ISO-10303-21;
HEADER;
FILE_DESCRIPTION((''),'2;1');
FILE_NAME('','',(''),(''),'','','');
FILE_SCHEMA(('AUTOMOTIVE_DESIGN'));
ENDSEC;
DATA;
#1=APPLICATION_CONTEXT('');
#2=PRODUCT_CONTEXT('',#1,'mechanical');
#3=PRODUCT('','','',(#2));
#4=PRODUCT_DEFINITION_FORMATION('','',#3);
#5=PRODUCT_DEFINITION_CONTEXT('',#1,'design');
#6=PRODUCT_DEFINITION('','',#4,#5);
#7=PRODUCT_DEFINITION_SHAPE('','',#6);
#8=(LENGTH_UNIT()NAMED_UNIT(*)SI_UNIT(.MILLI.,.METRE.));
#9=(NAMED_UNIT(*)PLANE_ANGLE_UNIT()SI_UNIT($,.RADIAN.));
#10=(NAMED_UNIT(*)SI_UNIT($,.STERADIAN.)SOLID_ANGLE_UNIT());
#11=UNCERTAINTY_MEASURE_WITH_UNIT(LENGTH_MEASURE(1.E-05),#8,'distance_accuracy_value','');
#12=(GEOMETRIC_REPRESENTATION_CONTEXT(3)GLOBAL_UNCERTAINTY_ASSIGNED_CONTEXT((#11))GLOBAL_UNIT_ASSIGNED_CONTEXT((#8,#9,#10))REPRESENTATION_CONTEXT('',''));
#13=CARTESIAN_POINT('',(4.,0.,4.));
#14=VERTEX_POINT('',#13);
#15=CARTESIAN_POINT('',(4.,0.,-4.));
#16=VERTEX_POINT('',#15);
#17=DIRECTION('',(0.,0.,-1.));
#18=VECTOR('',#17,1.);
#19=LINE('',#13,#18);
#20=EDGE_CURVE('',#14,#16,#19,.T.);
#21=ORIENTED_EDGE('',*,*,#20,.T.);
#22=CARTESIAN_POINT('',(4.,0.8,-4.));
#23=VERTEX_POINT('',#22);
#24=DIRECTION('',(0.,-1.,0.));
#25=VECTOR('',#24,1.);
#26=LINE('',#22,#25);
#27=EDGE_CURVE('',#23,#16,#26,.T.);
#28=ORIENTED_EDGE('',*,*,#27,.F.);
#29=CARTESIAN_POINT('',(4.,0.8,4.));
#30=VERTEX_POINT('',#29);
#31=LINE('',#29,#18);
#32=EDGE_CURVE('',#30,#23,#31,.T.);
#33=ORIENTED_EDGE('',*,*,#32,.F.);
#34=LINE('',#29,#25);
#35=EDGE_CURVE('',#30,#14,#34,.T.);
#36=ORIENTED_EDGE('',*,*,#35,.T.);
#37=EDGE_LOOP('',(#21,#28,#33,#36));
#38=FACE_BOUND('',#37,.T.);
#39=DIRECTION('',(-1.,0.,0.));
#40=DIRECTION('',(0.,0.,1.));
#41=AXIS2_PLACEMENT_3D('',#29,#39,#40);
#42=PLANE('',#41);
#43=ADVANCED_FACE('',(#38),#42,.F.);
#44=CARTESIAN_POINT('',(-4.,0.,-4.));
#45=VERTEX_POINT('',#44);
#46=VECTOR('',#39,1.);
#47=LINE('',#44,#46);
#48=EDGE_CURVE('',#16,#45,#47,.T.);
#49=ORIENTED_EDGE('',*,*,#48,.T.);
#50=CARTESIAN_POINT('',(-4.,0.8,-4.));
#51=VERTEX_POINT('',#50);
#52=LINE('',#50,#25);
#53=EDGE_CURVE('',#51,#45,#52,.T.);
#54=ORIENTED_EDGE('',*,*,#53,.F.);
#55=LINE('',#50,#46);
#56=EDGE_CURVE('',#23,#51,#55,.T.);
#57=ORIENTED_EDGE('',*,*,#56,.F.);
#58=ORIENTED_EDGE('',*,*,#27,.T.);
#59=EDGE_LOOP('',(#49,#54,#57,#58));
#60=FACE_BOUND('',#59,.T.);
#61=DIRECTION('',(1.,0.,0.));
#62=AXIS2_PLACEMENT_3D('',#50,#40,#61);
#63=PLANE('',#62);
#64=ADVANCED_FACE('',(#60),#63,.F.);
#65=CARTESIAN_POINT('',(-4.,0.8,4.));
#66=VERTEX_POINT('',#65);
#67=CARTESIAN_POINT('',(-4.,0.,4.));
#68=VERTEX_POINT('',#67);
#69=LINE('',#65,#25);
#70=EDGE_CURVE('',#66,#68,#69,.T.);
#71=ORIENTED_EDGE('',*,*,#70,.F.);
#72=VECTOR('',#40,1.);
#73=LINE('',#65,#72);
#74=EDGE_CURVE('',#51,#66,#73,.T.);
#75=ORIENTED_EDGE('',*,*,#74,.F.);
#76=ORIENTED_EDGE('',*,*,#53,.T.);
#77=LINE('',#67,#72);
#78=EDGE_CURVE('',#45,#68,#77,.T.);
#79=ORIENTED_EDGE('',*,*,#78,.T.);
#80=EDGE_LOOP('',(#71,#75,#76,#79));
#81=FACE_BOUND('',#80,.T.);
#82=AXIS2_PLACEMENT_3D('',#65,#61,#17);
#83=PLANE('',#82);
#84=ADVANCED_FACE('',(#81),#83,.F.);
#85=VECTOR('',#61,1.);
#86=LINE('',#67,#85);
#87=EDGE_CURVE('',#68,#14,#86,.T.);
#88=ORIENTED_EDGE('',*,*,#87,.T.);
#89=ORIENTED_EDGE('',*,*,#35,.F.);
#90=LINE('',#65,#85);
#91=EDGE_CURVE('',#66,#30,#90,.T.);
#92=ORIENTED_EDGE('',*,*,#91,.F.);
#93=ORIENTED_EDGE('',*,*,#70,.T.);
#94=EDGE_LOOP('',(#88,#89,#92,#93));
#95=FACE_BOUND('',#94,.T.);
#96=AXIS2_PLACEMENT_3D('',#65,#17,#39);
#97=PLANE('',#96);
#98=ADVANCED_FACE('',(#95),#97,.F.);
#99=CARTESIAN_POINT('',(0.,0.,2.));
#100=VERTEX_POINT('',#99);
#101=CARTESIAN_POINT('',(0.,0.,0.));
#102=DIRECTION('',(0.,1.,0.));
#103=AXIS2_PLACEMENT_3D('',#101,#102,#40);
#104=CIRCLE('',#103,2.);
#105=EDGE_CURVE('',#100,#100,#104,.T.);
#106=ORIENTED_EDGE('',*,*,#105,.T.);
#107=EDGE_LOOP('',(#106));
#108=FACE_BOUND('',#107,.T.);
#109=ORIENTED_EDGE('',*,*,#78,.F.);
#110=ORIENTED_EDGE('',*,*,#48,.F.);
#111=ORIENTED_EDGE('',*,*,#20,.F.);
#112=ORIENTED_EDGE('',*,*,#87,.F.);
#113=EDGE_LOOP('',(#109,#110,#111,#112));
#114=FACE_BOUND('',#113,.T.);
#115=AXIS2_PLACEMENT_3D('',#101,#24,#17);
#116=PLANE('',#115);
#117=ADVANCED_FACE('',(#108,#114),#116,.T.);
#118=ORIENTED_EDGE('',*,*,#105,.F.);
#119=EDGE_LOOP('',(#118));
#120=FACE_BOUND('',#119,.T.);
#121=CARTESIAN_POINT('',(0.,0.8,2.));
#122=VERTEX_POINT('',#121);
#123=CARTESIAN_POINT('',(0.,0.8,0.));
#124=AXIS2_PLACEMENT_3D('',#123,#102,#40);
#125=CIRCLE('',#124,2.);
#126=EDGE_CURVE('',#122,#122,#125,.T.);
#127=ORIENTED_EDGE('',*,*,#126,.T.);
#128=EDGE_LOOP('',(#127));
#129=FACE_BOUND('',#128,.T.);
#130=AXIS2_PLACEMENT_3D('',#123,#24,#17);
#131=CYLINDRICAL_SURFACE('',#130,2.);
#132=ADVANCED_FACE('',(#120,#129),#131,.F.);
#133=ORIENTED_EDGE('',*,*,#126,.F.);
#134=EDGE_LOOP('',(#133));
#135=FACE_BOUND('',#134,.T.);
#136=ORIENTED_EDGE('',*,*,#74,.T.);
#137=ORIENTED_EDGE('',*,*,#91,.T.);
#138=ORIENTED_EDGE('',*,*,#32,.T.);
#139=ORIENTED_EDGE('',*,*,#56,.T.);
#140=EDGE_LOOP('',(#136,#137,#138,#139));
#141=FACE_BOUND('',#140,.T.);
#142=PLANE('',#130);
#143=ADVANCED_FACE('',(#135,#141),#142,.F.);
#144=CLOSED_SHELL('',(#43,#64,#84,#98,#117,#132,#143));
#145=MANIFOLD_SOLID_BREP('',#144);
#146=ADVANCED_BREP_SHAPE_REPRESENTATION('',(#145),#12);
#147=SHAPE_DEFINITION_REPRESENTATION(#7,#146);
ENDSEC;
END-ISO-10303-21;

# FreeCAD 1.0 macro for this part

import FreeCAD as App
import Part
import Sketcher
from FreeCAD import Vector


def add_polygon(sketch, points):
    """Adds a closed chain of lines whose ends are joined by coincident constraints."""
    first, n = sketch.GeometryCount, len(points)
    for a, b in zip(points, points[1:] + points[:1]):
        sketch.addGeometry(Part.LineSegment(App.Vector(*a, 0), App.Vector(*b, 0)), False)
    for i in range(n):
        sketch.addConstraint(Sketcher.Constraint("Coincident", first + i, 2, first + (i + 1) % n, 1))

doc = App.newDocument("Part")
body = doc.addObject("PartDesign::Body", "Body")

# Sketch on XZ plane
sketch1 = body.newObject("Sketcher::SketchObject", "Sketch")
sketch1.AttachmentSupport = (doc.getObject("XZ_Plane"), [""])
sketch1.MapMode = "FlatFace"
add_polygon(sketch1, [(-4, -4), (-4, 4), (4, 4), (4, -4)])  # lines 0-3
sketch1.addGeometry(Part.Circle(Vector(0, 0, 0), Vector(0, 0, 1), 2), False)  # 4
sketch1.addConstraint(Sketcher.Constraint("Vertical", 0))
sketch1.addConstraint(Sketcher.Constraint("Horizontal", 1))
sketch1.addConstraint(Sketcher.Constraint("Vertical", 2))
sketch1.addConstraint(Sketcher.Constraint("Horizontal", 3))
sketch1.addConstraint(Sketcher.Constraint("Coincident", 4, 3, -1, 1))
sketch1.addConstraint(Sketcher.Constraint("Symmetric", 0, 2, 2, 2, -1, 1))
sketch1.addConstraint(Sketcher.Constraint("Equal", 3, 0))
sketch1.addConstraint(Sketcher.Constraint("Diameter", 4, 4.0))
sketch1.addConstraint(Sketcher.Constraint("DistanceX", 1, 1, 1, 2, 8.0))
pad1 = body.newObject("PartDesign::Pad", "Pad")
pad1.Profile = sketch1
pad1.Length = 0.8
pad1.Reversed = True

doc.recompute()
